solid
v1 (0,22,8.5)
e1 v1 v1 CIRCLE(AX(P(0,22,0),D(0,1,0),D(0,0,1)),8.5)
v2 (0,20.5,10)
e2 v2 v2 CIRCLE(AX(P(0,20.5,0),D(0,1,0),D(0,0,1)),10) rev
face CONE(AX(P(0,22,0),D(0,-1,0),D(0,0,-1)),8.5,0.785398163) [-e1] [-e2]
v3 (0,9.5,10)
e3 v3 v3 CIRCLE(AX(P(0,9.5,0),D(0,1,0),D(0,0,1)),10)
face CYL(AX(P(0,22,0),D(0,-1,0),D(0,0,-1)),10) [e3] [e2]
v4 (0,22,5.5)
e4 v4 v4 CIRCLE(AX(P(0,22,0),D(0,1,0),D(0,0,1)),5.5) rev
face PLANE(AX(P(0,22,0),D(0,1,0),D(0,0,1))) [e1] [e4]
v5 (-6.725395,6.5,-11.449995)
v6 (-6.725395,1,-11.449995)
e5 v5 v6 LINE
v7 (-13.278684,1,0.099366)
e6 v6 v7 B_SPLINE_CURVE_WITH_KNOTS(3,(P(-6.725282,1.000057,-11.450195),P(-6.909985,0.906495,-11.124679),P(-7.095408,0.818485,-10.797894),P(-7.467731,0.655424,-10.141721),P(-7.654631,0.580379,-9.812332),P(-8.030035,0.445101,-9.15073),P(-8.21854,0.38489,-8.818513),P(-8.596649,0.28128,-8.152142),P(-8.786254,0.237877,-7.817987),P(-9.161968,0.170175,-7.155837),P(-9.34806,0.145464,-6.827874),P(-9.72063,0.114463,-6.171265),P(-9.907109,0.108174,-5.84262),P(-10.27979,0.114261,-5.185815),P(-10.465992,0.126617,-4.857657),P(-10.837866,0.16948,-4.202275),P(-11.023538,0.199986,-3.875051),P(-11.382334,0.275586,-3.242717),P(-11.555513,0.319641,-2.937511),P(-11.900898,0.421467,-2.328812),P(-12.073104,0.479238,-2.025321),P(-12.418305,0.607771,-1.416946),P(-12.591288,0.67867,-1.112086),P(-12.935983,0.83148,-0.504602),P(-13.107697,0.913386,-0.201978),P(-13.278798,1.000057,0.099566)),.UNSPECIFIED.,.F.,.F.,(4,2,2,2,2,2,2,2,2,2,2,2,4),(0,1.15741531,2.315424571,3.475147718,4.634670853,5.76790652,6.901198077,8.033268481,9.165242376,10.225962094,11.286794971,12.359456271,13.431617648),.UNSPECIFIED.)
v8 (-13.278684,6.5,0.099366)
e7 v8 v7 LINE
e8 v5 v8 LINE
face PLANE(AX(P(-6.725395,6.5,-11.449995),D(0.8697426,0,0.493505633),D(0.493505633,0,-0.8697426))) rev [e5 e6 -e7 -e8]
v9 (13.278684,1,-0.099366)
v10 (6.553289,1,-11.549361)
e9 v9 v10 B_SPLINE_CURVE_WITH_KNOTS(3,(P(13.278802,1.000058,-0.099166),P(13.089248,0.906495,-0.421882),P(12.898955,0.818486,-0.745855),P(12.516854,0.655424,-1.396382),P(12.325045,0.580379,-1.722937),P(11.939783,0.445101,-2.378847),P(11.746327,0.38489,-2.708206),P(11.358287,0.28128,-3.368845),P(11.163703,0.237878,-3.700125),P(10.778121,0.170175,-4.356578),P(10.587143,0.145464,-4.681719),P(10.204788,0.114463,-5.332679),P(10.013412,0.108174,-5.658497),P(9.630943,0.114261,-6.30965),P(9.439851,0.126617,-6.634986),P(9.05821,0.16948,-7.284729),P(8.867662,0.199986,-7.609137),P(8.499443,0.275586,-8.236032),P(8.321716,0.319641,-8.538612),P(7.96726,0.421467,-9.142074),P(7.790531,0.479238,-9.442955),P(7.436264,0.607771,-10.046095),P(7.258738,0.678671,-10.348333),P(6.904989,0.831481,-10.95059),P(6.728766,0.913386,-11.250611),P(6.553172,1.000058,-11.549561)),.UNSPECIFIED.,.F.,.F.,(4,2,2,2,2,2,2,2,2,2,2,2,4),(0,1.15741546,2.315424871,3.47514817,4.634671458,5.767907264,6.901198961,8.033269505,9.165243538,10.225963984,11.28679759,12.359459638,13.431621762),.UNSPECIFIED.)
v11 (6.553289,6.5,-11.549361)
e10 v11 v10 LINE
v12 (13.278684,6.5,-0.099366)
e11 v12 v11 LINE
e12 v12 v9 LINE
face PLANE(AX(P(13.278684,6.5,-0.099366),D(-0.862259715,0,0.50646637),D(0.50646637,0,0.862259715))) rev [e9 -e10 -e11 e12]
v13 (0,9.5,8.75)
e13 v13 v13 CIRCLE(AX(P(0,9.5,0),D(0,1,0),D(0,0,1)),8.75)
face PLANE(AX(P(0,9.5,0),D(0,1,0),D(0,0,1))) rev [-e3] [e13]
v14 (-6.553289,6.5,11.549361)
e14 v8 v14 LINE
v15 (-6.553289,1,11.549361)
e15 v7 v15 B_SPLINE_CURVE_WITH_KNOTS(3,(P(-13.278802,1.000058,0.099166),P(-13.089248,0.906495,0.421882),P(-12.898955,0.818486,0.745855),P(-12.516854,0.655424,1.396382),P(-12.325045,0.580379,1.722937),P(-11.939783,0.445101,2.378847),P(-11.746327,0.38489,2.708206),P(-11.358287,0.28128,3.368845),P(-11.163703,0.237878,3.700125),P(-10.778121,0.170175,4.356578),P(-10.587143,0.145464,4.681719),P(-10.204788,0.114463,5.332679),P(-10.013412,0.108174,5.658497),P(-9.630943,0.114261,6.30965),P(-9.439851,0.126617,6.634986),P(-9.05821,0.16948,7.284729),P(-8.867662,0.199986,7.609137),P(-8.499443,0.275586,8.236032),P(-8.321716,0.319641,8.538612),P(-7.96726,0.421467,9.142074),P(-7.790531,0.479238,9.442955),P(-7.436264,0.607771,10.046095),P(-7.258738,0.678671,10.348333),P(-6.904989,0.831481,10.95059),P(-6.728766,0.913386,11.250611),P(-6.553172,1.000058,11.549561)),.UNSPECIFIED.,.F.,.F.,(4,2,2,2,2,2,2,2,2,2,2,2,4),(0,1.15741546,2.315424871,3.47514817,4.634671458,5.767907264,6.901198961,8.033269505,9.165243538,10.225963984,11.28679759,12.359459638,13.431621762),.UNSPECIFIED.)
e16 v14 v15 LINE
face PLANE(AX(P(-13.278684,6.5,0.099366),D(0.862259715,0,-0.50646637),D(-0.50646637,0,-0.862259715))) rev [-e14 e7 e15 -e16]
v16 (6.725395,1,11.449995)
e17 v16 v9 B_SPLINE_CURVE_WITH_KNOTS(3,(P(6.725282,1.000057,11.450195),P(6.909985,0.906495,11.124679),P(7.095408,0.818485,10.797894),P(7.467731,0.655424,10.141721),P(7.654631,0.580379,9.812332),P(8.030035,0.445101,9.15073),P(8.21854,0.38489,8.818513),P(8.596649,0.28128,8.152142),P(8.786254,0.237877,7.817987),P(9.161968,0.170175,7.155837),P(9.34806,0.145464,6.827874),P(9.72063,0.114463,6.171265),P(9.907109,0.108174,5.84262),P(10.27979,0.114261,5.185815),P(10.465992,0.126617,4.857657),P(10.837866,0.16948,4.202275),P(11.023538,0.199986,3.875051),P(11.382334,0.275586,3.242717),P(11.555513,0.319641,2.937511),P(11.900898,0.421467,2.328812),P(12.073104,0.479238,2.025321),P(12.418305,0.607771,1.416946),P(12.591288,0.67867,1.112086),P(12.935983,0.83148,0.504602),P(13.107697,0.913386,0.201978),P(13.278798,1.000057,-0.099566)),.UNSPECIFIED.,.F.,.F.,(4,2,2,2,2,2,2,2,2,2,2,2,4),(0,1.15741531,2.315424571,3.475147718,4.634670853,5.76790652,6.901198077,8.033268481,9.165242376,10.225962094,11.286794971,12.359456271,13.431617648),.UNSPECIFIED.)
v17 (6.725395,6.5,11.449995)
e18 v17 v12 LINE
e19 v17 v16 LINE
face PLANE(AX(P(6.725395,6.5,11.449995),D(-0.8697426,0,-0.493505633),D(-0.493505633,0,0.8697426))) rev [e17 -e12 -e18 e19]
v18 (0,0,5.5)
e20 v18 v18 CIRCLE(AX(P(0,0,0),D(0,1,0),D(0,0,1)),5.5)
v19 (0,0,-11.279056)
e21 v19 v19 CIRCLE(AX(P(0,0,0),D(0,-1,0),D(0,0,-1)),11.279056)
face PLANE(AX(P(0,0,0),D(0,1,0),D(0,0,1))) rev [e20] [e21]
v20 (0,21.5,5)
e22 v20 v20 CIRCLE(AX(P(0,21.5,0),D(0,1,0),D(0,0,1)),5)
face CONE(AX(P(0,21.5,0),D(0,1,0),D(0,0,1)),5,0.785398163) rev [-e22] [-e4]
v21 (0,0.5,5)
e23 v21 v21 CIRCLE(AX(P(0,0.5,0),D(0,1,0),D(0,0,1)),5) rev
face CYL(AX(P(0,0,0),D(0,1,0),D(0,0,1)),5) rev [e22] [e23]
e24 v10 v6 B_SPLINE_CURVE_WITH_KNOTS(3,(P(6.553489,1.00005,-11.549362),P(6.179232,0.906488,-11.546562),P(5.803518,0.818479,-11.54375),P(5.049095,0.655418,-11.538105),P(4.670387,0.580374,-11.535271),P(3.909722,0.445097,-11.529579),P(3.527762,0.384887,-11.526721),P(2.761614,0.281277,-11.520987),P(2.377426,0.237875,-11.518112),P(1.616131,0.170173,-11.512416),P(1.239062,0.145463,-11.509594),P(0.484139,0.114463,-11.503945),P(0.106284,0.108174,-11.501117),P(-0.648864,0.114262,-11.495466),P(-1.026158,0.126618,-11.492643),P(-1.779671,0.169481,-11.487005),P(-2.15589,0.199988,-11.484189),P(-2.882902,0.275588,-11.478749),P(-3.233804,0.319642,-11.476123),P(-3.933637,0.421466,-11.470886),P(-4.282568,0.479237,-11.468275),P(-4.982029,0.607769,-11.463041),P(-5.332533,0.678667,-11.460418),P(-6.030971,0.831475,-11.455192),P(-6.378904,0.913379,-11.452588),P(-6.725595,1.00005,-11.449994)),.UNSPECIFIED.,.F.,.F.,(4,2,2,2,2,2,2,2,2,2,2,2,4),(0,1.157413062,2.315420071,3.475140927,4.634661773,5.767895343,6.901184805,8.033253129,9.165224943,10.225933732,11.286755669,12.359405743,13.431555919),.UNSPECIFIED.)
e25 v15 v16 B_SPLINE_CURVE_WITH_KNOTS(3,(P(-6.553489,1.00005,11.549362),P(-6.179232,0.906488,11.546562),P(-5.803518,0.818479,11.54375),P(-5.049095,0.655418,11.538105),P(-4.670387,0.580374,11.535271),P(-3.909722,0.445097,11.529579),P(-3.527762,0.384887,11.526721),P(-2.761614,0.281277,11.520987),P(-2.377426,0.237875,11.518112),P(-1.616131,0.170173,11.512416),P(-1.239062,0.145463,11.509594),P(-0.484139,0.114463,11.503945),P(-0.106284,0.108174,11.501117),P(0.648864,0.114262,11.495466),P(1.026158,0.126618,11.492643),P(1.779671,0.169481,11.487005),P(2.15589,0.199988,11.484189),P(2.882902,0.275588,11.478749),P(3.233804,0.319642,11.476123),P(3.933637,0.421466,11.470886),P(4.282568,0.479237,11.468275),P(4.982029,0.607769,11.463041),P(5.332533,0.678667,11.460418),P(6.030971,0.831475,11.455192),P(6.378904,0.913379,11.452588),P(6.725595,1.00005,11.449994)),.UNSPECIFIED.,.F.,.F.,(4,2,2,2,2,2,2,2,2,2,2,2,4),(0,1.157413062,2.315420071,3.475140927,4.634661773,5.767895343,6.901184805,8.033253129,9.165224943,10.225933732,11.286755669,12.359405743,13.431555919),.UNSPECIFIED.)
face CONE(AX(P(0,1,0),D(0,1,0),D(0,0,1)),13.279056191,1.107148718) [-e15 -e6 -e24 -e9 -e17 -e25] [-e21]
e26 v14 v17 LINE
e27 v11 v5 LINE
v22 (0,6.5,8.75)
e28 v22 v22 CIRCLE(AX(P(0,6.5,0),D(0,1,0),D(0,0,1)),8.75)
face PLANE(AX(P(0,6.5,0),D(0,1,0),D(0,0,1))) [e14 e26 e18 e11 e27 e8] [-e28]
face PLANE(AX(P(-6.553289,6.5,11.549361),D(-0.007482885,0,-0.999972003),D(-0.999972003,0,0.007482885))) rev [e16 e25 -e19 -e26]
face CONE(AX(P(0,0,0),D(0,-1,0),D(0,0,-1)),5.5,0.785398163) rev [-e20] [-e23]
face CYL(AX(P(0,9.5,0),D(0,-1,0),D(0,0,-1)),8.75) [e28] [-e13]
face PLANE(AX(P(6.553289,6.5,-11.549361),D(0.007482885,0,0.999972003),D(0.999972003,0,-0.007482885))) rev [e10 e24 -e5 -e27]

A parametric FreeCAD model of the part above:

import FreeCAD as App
import Part
import Sketcher
from FreeCAD import Vector


def edges_at(feature, points):
    """Names of the edges that pass closest to the given points."""
    edges = feature.Shape.Edges
    near = lambda p: min(range(len(edges)), key=lambda i: edges[i].distToShape(Part.Vertex(*p))[0])
    return sorted({f"Edge{near(p) + 1}" for p in points})

doc = App.newDocument("Part")
body = doc.addObject("PartDesign::Body", "Body")

# Sketch on XZ plane
sketch1 = body.newObject("Sketcher::SketchObject", "Sketch")
sketch1.AttachmentSupport = (doc.getObject("XZ_Plane"), [""])
sketch1.MapMode = "FlatFace"
sketch1.addGeometry([
    Part.LineSegment(Vector(7, -12, 0), Vector(-7, -11, 0)),  # 0
    Part.LineSegment(Vector(-7, -11, 0), Vector(-13, 0, 0)),  # 1
    Part.LineSegment(Vector(-13, 0, 0), Vector(-7, 12, 0)),  # 2
    Part.LineSegment(Vector(-7, 12, 0), Vector(7, 11, 0)),  # 3
    Part.LineSegment(Vector(7, 11, 0), Vector(13, 0, 0)),  # 4
    Part.LineSegment(Vector(13, 0, 0), Vector(7, -12, 0)),  # 5
], False)
sketch1.addConstraint([
    Sketcher.Constraint("Coincident", 0, 2, 1, 1),
    Sketcher.Constraint("Coincident", 1, 2, 2, 1),
    Sketcher.Constraint("Coincident", 2, 2, 3, 1),
    Sketcher.Constraint("Coincident", 3, 2, 4, 1),
    Sketcher.Constraint("Coincident", 4, 2, 5, 1),
    Sketcher.Constraint("Coincident", 5, 2, 0, 1),
    Sketcher.Constraint("Symmetric", 0, 2, 3, 2, -1, 1),
    Sketcher.Constraint("Symmetric", 1, 2, 4, 2, -1, 1),
    Sketcher.Constraint("Symmetric", 2, 2, 5, 2, -1, 1),
    Sketcher.Constraint("Equal", 0, 1),
    Sketcher.Constraint("Equal", 1, 2),
    Sketcher.Constraint("DistanceX", 2, 2, -1, 1, 6.553289),
    Sketcher.Constraint("DistanceY", -1, 1, 2, 2, 11.549361),
    Sketcher.Constraint("DistanceX", 1, 2, 0, 2, 6.553289),
    Sketcher.Constraint("DistanceY", 0, 2, 1, 2, 11.549361),
])
pad1 = body.newObject("PartDesign::Pad", "Pad")
pad1.Profile = sketch1
pad1.Length = 6.5
pad1.Reversed = True

# Sketch on XZ plane
sketch2 = body.newObject("Sketcher::SketchObject", "Sketch001")
sketch2.AttachmentSupport = (doc.getObject("XZ_Plane"), [""])
sketch2.MapMode = "FlatFace"
sketch2.AttachmentOffset = App.Placement(Vector(0, 0, -6.5), App.Rotation())
sketch2.addGeometry(Part.Circle(Vector(0, 0, 0), Vector(0, 0, 1), 9), False)
sketch2.addConstraint([
    Sketcher.Constraint("Coincident", 0, 3, -1, 1),
    Sketcher.Constraint("Diameter", 0, 17.5),
])
pad2 = body.newObject("PartDesign::Pad", "Pad001")
pad2.Profile = sketch2
pad2.Length = 3
pad2.Reversed = True

# Sketch on XZ plane
sketch3 = body.newObject("Sketcher::SketchObject", "Sketch002")
sketch3.AttachmentSupport = (doc.getObject("XZ_Plane"), [""])
sketch3.MapMode = "FlatFace"
sketch3.AttachmentOffset = App.Placement(Vector(0, 0, -9.5), App.Rotation())
sketch3.addGeometry(Part.Circle(Vector(0, 0, 0), Vector(0, 0, 1), 10), False)
sketch3.addConstraint([
    Sketcher.Constraint("Coincident", 0, 3, -1, 1),
    Sketcher.Constraint("Diameter", 0, 20.0),
])
pad3 = body.newObject("PartDesign::Pad", "Pad002")
pad3.Profile = sketch3
pad3.Length = 12.5
pad3.Reversed = True
doc.recompute()

chamfer = body.newObject("PartDesign::Chamfer", "Chamfer")
chamfer.Base = (pad3, edges_at(pad3, [(0, 22, -10)]))
chamfer.Size = 1.5

# Sketch on an angled plane
sketch4 = body.newObject("Sketcher::SketchObject", "Sketch003")
sketch4.Placement = App.Placement(Vector(0, 0, 0), App.Rotation(Vector(0.493505633, 0, -0.8697426), Vector(0, 1, 0), Vector(0.8697426, 0, 0.493505633), "ZXY"))
sketch4.addGeometry([
    Part.LineSegment(Vector(13.3, 1, 0), Vector(11.3, 0, 0)),
    Part.LineSegment(Vector(11.3, 0, 0), Vector(13.3, 0, 0)),
    Part.LineSegment(Vector(13.3, 0, 0), Vector(13.3, 1, 0)),
], False)
sketch4.addConstraint([
    Sketcher.Constraint("Coincident", 0, 2, 1, 1),
    Sketcher.Constraint("Coincident", 1, 2, 2, 1),
    Sketcher.Constraint("Coincident", 2, 2, 0, 1),
    Sketcher.Constraint("Horizontal", 1),
    Sketcher.Constraint("Vertical", 2),
    Sketcher.Constraint("PointOnObject", 0, 2, -1),
    Sketcher.Constraint("DistanceX", 1, 1, 1, 2, 2.0),
    Sketcher.Constraint("DistanceY", 2, 1, 2, 2, 1.0),
    Sketcher.Constraint("DistanceX", -1, 1, 0, 2, 11.279056),
])
groove = body.newObject("PartDesign::Groove", "Groove")
groove.Profile = sketch4
groove.ReferenceAxis = (sketch4, ["V_Axis"])
groove.Angle = 360

# Sketch on XZ plane
sketch5 = body.newObject("Sketcher::SketchObject", "Sketch004")
sketch5.AttachmentSupport = (doc.getObject("XZ_Plane"), [""])
sketch5.MapMode = "FlatFace"
sketch5.AttachmentOffset = App.Placement(Vector(0, 0, -22), App.Rotation())
sketch5.addGeometry(Part.Circle(Vector(0, 0, 0), Vector(0, 0, 1), 5), False)
sketch5.addConstraint([
    Sketcher.Constraint("Coincident", 0, 3, -1, 1),
    Sketcher.Constraint("Diameter", 0, 10.0),
])
pocket1 = body.newObject("PartDesign::Pocket", "Pocket")
pocket1.Profile = sketch5
pocket1.Type = "ThroughAll"
pocket1.Reversed = True
doc.recompute()

chamfer2 = body.newObject("PartDesign::Chamfer", "Chamfer001")
chamfer2.Base = (pocket1, edges_at(pocket1, [(0, 0, -5), (0, 22, -5)]))
chamfer2.Size = 0.5

doc.recompute()
